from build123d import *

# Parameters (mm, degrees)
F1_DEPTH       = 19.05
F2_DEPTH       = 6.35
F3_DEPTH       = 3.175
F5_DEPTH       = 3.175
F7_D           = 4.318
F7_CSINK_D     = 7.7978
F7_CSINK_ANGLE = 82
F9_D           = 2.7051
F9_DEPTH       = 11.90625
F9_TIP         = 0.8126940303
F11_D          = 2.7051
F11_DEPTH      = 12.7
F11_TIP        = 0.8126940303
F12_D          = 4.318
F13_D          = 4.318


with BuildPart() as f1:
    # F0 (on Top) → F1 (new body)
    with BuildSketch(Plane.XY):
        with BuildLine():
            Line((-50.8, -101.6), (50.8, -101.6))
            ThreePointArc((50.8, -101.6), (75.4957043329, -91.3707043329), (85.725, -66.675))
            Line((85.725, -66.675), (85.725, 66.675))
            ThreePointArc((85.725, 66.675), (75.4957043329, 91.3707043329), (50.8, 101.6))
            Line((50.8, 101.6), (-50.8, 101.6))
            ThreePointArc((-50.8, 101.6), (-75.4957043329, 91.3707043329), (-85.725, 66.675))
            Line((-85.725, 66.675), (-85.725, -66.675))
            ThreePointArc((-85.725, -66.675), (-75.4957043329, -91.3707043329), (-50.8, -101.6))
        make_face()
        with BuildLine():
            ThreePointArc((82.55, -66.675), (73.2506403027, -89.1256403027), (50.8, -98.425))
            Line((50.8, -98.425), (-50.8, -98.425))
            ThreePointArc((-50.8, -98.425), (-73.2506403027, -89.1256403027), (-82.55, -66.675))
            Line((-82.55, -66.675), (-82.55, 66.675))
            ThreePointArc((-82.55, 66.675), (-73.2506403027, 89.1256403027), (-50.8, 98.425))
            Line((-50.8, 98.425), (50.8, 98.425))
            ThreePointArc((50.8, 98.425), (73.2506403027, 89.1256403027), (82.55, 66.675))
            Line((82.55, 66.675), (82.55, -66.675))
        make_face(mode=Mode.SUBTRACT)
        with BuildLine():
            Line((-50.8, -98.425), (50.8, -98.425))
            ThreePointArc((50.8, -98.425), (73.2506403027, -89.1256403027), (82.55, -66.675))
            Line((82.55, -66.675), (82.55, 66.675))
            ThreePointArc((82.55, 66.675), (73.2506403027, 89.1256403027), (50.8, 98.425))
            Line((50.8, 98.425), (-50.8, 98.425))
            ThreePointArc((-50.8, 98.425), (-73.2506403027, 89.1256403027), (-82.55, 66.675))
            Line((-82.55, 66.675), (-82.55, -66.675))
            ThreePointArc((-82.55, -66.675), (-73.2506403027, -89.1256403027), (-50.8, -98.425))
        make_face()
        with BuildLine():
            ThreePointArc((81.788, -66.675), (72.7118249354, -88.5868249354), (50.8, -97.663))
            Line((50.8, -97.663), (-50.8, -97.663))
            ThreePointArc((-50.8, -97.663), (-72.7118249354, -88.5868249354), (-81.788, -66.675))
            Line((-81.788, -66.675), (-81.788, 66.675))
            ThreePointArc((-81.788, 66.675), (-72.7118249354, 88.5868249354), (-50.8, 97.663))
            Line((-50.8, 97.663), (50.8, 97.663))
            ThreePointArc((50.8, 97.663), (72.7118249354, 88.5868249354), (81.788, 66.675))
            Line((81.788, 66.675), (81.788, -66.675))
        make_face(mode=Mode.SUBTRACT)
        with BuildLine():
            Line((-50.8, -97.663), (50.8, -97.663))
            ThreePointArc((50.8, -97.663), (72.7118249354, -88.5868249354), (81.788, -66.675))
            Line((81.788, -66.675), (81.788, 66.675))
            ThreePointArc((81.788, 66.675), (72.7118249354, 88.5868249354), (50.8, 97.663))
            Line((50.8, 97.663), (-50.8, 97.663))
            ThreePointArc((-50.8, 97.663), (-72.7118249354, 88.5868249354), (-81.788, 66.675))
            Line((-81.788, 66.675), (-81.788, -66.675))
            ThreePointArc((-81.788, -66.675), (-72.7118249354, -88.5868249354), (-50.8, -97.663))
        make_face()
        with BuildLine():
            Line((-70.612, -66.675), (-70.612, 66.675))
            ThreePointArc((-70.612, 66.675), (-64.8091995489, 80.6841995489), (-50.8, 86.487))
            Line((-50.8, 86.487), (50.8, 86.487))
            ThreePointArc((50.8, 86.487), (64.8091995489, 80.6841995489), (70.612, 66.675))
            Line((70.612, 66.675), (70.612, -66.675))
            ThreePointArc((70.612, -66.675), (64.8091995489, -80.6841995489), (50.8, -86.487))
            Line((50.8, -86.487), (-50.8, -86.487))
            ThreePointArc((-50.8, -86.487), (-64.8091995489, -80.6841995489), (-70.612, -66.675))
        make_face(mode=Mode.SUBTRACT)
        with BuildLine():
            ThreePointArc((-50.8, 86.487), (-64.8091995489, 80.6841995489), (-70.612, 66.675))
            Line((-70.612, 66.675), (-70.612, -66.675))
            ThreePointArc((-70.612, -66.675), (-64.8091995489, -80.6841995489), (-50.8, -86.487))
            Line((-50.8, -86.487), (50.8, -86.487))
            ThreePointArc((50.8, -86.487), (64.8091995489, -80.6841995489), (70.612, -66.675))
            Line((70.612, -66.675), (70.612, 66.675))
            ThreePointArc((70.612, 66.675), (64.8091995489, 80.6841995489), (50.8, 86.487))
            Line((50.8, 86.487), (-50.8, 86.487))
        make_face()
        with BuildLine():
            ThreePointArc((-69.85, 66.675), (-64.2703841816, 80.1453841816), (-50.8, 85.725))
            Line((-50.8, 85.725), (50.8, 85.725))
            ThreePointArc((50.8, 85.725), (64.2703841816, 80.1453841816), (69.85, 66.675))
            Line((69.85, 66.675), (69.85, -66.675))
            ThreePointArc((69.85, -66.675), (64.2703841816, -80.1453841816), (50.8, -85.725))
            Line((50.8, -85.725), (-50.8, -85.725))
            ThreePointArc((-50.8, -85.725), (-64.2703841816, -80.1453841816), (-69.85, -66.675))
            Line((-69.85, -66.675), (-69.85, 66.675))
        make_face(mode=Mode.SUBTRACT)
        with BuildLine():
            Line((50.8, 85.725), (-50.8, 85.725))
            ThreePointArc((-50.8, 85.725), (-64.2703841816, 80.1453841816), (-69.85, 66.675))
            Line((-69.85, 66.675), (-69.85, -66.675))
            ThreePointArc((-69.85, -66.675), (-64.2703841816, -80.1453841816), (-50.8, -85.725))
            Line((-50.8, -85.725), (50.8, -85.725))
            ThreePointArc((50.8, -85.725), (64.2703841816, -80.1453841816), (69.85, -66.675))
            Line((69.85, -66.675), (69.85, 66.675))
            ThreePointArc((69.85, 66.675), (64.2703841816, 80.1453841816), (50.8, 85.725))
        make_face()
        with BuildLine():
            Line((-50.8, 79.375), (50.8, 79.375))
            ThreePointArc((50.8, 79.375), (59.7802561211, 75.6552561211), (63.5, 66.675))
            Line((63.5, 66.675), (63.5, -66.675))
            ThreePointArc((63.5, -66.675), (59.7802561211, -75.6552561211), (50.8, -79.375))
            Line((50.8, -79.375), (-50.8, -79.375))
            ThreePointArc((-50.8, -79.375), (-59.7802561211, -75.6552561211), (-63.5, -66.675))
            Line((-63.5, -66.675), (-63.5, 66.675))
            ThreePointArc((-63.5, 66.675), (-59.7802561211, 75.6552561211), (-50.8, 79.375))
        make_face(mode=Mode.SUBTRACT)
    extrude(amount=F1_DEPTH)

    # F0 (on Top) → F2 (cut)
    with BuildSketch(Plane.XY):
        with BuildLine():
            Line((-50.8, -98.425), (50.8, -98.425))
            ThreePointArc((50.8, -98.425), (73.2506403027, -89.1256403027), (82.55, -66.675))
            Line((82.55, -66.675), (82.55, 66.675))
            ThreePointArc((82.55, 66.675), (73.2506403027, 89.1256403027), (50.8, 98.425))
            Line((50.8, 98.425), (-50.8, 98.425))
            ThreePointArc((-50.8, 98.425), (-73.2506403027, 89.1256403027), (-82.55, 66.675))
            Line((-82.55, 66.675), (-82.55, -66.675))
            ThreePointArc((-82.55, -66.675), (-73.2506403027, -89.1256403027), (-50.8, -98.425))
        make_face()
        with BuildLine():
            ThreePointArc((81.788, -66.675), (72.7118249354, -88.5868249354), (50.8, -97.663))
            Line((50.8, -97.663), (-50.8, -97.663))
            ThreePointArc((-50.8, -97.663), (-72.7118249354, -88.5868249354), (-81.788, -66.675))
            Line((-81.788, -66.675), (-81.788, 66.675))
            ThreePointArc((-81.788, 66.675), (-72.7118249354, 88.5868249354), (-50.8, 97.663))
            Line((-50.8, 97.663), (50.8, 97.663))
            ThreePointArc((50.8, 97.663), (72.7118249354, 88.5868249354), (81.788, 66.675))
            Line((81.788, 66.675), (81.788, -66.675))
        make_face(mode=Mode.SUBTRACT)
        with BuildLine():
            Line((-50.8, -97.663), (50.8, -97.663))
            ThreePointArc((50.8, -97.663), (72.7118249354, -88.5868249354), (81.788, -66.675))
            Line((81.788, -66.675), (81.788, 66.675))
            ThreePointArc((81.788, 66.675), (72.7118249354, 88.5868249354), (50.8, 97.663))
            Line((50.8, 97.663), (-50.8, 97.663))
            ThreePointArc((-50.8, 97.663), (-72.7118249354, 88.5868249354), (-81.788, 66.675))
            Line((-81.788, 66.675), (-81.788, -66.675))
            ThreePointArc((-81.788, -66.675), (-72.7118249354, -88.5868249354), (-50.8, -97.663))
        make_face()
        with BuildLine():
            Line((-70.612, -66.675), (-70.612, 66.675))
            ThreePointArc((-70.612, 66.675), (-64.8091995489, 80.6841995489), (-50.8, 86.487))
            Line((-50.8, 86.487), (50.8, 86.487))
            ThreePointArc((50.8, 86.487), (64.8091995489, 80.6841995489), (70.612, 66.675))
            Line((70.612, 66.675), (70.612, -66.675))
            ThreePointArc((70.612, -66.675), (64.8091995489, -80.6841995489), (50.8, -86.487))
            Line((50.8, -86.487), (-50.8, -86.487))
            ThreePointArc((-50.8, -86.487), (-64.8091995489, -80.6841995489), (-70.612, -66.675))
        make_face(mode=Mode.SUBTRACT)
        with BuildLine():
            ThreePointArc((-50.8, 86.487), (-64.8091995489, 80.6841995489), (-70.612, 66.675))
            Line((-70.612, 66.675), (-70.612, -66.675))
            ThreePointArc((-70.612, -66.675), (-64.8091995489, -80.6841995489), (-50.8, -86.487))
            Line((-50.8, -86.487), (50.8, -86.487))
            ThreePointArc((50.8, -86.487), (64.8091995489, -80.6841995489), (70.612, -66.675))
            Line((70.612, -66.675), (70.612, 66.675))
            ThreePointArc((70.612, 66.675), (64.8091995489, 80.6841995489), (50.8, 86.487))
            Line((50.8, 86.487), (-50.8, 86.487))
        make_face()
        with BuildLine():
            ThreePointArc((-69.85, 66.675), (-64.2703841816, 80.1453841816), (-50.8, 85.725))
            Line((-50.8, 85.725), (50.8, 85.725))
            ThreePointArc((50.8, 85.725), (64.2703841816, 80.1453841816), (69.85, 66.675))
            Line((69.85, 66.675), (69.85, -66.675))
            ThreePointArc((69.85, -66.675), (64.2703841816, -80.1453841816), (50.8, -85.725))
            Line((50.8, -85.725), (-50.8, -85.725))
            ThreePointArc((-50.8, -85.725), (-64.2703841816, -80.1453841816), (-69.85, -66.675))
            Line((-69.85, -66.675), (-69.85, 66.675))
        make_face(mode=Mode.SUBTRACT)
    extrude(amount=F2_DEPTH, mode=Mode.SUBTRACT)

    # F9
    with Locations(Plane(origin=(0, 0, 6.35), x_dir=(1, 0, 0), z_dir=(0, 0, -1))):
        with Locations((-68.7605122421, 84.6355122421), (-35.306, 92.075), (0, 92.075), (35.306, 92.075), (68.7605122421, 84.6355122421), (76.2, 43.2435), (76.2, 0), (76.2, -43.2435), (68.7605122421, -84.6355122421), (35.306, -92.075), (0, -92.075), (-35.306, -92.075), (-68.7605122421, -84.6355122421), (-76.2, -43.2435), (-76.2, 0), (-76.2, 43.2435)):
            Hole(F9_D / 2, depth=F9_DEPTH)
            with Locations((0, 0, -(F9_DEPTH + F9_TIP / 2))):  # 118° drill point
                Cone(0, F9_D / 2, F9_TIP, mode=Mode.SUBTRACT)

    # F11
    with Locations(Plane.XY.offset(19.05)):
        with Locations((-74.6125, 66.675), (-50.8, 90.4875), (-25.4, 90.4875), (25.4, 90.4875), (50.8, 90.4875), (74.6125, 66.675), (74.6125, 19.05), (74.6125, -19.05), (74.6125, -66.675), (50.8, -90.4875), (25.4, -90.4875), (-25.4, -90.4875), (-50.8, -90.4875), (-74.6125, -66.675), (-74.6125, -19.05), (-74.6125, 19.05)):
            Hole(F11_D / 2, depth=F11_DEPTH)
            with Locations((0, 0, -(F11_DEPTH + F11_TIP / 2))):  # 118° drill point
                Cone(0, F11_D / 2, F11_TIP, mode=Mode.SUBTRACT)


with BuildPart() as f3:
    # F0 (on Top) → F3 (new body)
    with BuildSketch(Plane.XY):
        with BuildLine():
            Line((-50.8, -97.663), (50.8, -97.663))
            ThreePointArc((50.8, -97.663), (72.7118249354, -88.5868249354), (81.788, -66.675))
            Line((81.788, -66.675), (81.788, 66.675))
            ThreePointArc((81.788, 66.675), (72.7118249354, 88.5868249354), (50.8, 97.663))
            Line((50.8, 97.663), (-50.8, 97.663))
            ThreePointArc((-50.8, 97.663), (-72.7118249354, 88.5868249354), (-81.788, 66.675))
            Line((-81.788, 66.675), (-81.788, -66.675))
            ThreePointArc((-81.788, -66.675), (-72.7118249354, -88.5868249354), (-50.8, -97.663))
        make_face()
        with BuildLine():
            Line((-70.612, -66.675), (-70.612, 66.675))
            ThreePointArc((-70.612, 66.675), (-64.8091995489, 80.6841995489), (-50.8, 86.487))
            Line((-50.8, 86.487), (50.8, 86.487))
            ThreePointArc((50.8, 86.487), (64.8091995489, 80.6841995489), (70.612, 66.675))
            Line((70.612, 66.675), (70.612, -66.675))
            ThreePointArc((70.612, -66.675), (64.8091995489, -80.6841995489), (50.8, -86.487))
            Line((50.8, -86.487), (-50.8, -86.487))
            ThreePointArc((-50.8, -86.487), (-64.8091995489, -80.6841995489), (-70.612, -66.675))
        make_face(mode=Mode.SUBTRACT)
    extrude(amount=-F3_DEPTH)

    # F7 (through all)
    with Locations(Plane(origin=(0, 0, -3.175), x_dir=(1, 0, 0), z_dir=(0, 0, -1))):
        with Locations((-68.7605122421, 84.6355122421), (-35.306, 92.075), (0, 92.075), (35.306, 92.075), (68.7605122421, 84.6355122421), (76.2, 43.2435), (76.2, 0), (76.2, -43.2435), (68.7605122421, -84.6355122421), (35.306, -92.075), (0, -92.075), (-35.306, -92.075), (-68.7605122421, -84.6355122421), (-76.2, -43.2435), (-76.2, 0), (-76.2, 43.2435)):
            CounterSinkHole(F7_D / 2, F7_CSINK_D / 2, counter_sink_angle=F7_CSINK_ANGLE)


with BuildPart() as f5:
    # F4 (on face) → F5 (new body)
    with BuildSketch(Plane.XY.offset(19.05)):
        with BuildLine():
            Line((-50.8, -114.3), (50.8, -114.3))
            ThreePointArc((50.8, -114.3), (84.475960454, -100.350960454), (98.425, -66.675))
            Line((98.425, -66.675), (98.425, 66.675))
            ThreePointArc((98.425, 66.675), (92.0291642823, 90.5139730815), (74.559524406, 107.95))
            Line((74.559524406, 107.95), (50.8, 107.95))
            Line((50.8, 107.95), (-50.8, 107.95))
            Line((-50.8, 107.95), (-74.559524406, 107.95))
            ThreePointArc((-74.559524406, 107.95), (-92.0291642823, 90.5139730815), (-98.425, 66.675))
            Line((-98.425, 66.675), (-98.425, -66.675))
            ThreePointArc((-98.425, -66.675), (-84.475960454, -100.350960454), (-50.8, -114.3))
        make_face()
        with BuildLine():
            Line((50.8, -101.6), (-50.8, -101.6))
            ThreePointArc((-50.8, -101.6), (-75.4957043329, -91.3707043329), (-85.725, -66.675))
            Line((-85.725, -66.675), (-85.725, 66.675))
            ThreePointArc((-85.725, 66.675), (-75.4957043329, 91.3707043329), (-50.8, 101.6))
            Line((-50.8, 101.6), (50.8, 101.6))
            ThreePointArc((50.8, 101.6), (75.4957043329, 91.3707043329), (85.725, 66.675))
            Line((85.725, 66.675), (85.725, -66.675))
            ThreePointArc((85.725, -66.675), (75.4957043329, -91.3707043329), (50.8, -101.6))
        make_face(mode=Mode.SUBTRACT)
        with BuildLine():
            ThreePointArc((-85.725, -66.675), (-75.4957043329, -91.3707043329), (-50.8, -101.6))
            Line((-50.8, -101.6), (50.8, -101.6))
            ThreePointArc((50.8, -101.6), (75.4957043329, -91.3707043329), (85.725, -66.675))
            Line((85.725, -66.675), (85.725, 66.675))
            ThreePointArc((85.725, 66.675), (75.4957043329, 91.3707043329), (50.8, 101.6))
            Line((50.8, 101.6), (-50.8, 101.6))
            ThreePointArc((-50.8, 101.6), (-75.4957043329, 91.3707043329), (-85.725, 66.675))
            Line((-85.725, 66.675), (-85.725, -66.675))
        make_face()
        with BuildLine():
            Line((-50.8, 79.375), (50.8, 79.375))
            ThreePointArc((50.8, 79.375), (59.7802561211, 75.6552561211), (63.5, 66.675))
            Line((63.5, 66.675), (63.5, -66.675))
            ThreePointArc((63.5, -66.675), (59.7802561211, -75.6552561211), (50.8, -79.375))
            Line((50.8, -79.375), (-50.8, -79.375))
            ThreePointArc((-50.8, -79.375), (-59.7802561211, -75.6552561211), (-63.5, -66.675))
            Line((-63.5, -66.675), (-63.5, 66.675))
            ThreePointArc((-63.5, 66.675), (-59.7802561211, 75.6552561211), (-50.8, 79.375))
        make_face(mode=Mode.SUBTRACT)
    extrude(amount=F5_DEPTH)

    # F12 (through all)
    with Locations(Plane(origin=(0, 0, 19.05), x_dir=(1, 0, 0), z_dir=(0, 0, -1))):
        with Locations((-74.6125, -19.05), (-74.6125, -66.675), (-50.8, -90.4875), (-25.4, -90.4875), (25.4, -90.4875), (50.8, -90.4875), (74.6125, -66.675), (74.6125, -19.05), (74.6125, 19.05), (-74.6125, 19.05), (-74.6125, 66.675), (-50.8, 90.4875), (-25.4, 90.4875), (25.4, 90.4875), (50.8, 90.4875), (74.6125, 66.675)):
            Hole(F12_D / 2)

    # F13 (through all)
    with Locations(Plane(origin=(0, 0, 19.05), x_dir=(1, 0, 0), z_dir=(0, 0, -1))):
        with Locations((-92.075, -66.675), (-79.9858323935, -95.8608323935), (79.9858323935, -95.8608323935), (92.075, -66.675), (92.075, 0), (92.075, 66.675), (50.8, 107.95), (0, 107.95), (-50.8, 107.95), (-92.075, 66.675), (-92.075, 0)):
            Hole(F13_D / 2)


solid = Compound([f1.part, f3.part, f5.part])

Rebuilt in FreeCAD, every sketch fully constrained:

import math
import FreeCAD as App
import Part
import Sketcher

V = App.Vector
Q = App.Units.Quantity

doc = App.newDocument("Part")
body = doc.addObject("PartDesign::Body", "Body")

sketch1 = doc.addObject("Sketcher::SketchObject", "Sketch")
body.addObject(sketch1)
sketch1.AttachmentSupport = (doc.XY_Plane, [""])
sketch1.MapMode = "FlatFace"
sketch1.addGeometry([
    Part.LineSegment(V(-51, -102, 0), V(51, -102, 0)),
    Part.ArcOfCircle(Part.Circle(V(51, -67, 0), V(0, 0, 1), 35), math.radians(-90), math.radians(0)),
    Part.LineSegment(V(86, -67, 0), V(86, 67, 0)),
    Part.ArcOfCircle(Part.Circle(V(51, 67, 0), V(0, 0, 1), 35), math.radians(0), math.radians(90)),
    Part.LineSegment(V(51, 102, 0), V(-51, 102, 0)),
    Part.ArcOfCircle(Part.Circle(V(-51, 67, 0), V(0, 0, 1), 35), math.radians(90), math.radians(180)),
    Part.LineSegment(V(-86, 67, 0), V(-86, -67, 0)),
    Part.ArcOfCircle(Part.Circle(V(-51, -67, 0), V(0, 0, 1), 35), math.radians(180), math.radians(270)),
    Part.ArcOfCircle(Part.Circle(V(-51, 67, 0), V(0, 0, 1), 13), math.radians(90), math.radians(180)),
    Part.LineSegment(V(-51, 79, 0), V(51, 79, 0)),
    Part.ArcOfCircle(Part.Circle(V(51, 67, 0), V(0, 0, 1), 13), math.radians(0), math.radians(90)),
    Part.LineSegment(V(64, 67, 0), V(64, -67, 0)),
    Part.ArcOfCircle(Part.Circle(V(51, -67, 0), V(0, 0, 1), 13), math.radians(-90), math.radians(0)),
    Part.LineSegment(V(51, -79, 0), V(-51, -79, 0)),
    Part.ArcOfCircle(Part.Circle(V(-51, -67, 0), V(0, 0, 1), 13), math.radians(180), math.radians(270)),
    Part.LineSegment(V(-64, -67, 0), V(-64, 67, 0)),
], False)
sketch1.addConstraint([
    Sketcher.Constraint("Tangent", 0, 2, 1, 1),
    Sketcher.Constraint("Tangent", 1, 2, 2, 1),
    Sketcher.Constraint("Tangent", 2, 2, 3, 1),
    Sketcher.Constraint("Tangent", 3, 2, 4, 1),
    Sketcher.Constraint("Tangent", 4, 2, 5, 1),
    Sketcher.Constraint("Tangent", 5, 2, 6, 1),
    Sketcher.Constraint("Tangent", 6, 2, 7, 1),
    Sketcher.Constraint("Tangent", 7, 2, 0, 1),
    Sketcher.Constraint("Tangent", 8, 1, 9, 1),
    Sketcher.Constraint("Tangent", 9, 2, 10, 2),
    Sketcher.Constraint("Tangent", 10, 1, 11, 1),
    Sketcher.Constraint("Tangent", 11, 2, 12, 2),
    Sketcher.Constraint("Tangent", 12, 1, 13, 1),
    Sketcher.Constraint("Tangent", 13, 2, 14, 2),
    Sketcher.Constraint("Tangent", 14, 1, 15, 1),
    Sketcher.Constraint("Tangent", 15, 2, 8, 2),
    Sketcher.Constraint("Horizontal", 0),
    Sketcher.Constraint("Vertical", 2),
    Sketcher.Constraint("Horizontal", 4),
    Sketcher.Constraint("Vertical", 6),
    Sketcher.Constraint("Horizontal", 9),
    Sketcher.Constraint("Vertical", 11),
    Sketcher.Constraint("Horizontal", 13),
    Sketcher.Constraint("Vertical", 15),
    Sketcher.Constraint("Coincident", 8, 3, 5, 3),
    Sketcher.Constraint("Coincident", 10, 3, 3, 3),
    Sketcher.Constraint("Coincident", 12, 3, 1, 3),
    Sketcher.Constraint("Equal", 1, 3),
    Sketcher.Constraint("Equal", 3, 5),
    Sketcher.Constraint("Equal", 5, 7),
    Sketcher.Constraint("Equal", 12, 14),
    Sketcher.Constraint("Symmetric", 1, 3, 5, 3, -1, 1),
    Sketcher.Constraint("Radius", 8, Q("0.5 in")),
    Sketcher.Constraint("DistanceX", 0, 1, 0, 2, Q("4 in")),
    Sketcher.Constraint("DistanceY", 0, 2, -1, 1, Q("4 in")),
    Sketcher.Constraint("Radius", 1, Q("1.375 in")),
])
pad1 = doc.addObject("PartDesign::Pad", "Pad")
body.addObject(pad1)
pad1.Profile = sketch1
pad1.Length = Q("0.75 in")

sketch2 = doc.addObject("Sketcher::SketchObject", "Sketch001")
body.addObject(sketch2)
sketch2.AttachmentSupport = (doc.XY_Plane, [""])
sketch2.MapMode = "FlatFace"
sketch2.addGeometry([
    Part.LineSegment(V(-51, -98, 0), V(51, -98, 0)),
    Part.ArcOfCircle(Part.Circle(V(51, -67, 0), V(0, 0, 1), 32), math.radians(-90), math.radians(0)),
    Part.LineSegment(V(83, -67, 0), V(83, 67, 0)),
    Part.ArcOfCircle(Part.Circle(V(51, 67, 0), V(0, 0, 1), 32), math.radians(0), math.radians(90)),
    Part.LineSegment(V(51, 98, 0), V(-51, 98, 0)),
    Part.ArcOfCircle(Part.Circle(V(-51, 67, 0), V(0, 0, 1), 32), math.radians(90), math.radians(180)),
    Part.LineSegment(V(-83, 67, 0), V(-83, -67, 0)),
    Part.ArcOfCircle(Part.Circle(V(-51, -67, 0), V(0, 0, 1), 32), math.radians(180), math.radians(270)),
    Part.LineSegment(V(-70, -67, 0), V(-70, 67, 0)),
    Part.ArcOfCircle(Part.Circle(V(-51, 67, 0), V(0, 0, 1), 19), math.radians(90), math.radians(180)),
    Part.LineSegment(V(-51, 86, 0), V(51, 86, 0)),
    Part.ArcOfCircle(Part.Circle(V(51, 67, 0), V(0, 0, 1), 19), math.radians(0), math.radians(90)),
    Part.LineSegment(V(70, 67, 0), V(70, -67, 0)),
    Part.ArcOfCircle(Part.Circle(V(51, -67, 0), V(0, 0, 1), 19), math.radians(-90), math.radians(0)),
    Part.LineSegment(V(51, -86, 0), V(-51, -86, 0)),
    Part.ArcOfCircle(Part.Circle(V(-51, -67, 0), V(0, 0, 1), 19), math.radians(180), math.radians(270)),
], False)
sketch2.addConstraint([
    Sketcher.Constraint("Tangent", 0, 2, 1, 1),
    Sketcher.Constraint("Tangent", 1, 2, 2, 1),
    Sketcher.Constraint("Tangent", 2, 2, 3, 1),
    Sketcher.Constraint("Tangent", 3, 2, 4, 1),
    Sketcher.Constraint("Tangent", 4, 2, 5, 1),
    Sketcher.Constraint("Tangent", 5, 2, 6, 1),
    Sketcher.Constraint("Tangent", 6, 2, 7, 1),
    Sketcher.Constraint("Tangent", 7, 2, 0, 1),
    Sketcher.Constraint("Tangent", 8, 2, 9, 2),
    Sketcher.Constraint("Tangent", 9, 1, 10, 1),
    Sketcher.Constraint("Tangent", 10, 2, 11, 2),
    Sketcher.Constraint("Tangent", 11, 1, 12, 1),
    Sketcher.Constraint("Tangent", 12, 2, 13, 2),
    Sketcher.Constraint("Tangent", 13, 1, 14, 1),
    Sketcher.Constraint("Tangent", 14, 2, 15, 2),
    Sketcher.Constraint("Tangent", 15, 1, 8, 1),
    Sketcher.Constraint("Horizontal", 0),
    Sketcher.Constraint("Vertical", 2),
    Sketcher.Constraint("Horizontal", 4),
    Sketcher.Constraint("Vertical", 6),
    Sketcher.Constraint("Vertical", 8),
    Sketcher.Constraint("Horizontal", 10),
    Sketcher.Constraint("Vertical", 12),
    Sketcher.Constraint("Horizontal", 14),
    Sketcher.Constraint("Coincident", 9, 3, 5, 3),
    Sketcher.Constraint("Coincident", 11, 3, 3, 3),
    Sketcher.Constraint("Coincident", 13, 3, 1, 3),
    Sketcher.Constraint("Equal", 1, 3),
    Sketcher.Constraint("Equal", 3, 5),
    Sketcher.Constraint("Equal", 5, 7),
    Sketcher.Constraint("Equal", 13, 15),
    Sketcher.Constraint("Symmetric", 1, 3, 5, 3, -1, 1),
    Sketcher.Constraint("DistanceX", 0, 1, 0, 2, Q("4 in")),
    Sketcher.Constraint("Radius", 1, Q("1.25 in")),
    Sketcher.Constraint("Radius", 9, Q("0.75 in")),
    Sketcher.Constraint("DistanceY", 2, 1, 2, 2, Q("5.25 in")),
])
pocket1 = doc.addObject("PartDesign::Pocket", "Pocket")
body.addObject(pocket1)
pocket1.Profile = sketch2
pocket1.Length = Q("0.25 in")
pocket1.Reversed = True

sketch3 = doc.addObject("Sketcher::SketchObject", "Sketch002")
body.addObject(sketch3)
sketch3.AttachmentSupport = (doc.XY_Plane, [""])
sketch3.MapMode = "FlatFace"
sketch3.AttachmentOffset = App.Placement(V(0, 0, 0.25 * 25.4), App.Rotation())
sketch3.addGeometry([
    Part.Circle(V(-68.8, -84.6, 0), V(0, 0, 1), 1.4),
    Part.Circle(V(-35.3, -92.1, 0), V(0, 0, 1), 1.4),
    Part.Circle(V(0, -92.1, 0), V(0, 0, 1), 1.4),
    Part.Circle(V(35.3, -92.1, 0), V(0, 0, 1), 1.4),
    Part.Circle(V(68.8, -84.6, 0), V(0, 0, 1), 1.4),
    Part.Circle(V(76.2, -43.2, 0), V(0, 0, 1), 1.4),
    Part.Circle(V(76.2, 0, 0), V(0, 0, 1), 1.4),
    Part.Circle(V(76.2, 43.2, 0), V(0, 0, 1), 1.4),
    Part.Circle(V(68.8, 84.6, 0), V(0, 0, 1), 1.4),
    Part.Circle(V(35.3, 92.1, 0), V(0, 0, 1), 1.4),
    Part.Circle(V(0, 92.1, 0), V(0, 0, 1), 1.4),
    Part.Circle(V(-35.3, 92.1, 0), V(0, 0, 1), 1.4),
    Part.Circle(V(-68.8, 84.6, 0), V(0, 0, 1), 1.4),
    Part.Circle(V(-76.2, 43.2, 0), V(0, 0, 1), 1.4),
    Part.Circle(V(-76.2, 0, 0), V(0, 0, 1), 1.4),
    Part.Circle(V(-76.2, -43.2, 0), V(0, 0, 1), 1.4),
], False)
sketch3.addConstraint([
    Sketcher.Constraint("Equal", 0, 1),
    Sketcher.Constraint("Equal", 1, 2),
    Sketcher.Constraint("Equal", 2, 3),
    Sketcher.Constraint("Equal", 3, 4),
    Sketcher.Constraint("Equal", 4, 5),
    Sketcher.Constraint("Equal", 5, 6),
    Sketcher.Constraint("Equal", 6, 7),
    Sketcher.Constraint("Equal", 7, 8),
    Sketcher.Constraint("Equal", 8, 9),
    Sketcher.Constraint("Equal", 9, 10),
    Sketcher.Constraint("Equal", 10, 11),
    Sketcher.Constraint("Equal", 11, 12),
    Sketcher.Constraint("Equal", 12, 13),
    Sketcher.Constraint("Equal", 13, 14),
    Sketcher.Constraint("Equal", 14, 15),
    Sketcher.Constraint("Symmetric", 0, 3, 8, 3, -1, 1),
    Sketcher.Constraint("Symmetric", 1, 3, 9, 3, -1, 1),
    Sketcher.Constraint("Symmetric", 2, 3, 10, 3, -1, 1),
    Sketcher.Constraint("Symmetric", 3, 3, 11, 3, -1, 1),
    Sketcher.Constraint("Symmetric", 4, 3, 12, 3, -1, 1),
    Sketcher.Constraint("Symmetric", 5, 3, 13, 3, -1, 1),
    Sketcher.Constraint("Symmetric", 6, 3, 14, 3, -1, 1),
    Sketcher.Constraint("Symmetric", 7, 3, 15, 3, -1, 1),
    Sketcher.Constraint("Symmetric", 1, 3, 3, 3, -2),
    Sketcher.Constraint("Symmetric", 0, 3, 4, 3, -2),
    Sketcher.Constraint("Symmetric", 7, 3, 13, 3, -2),
    Sketcher.Constraint("PointOnObject", 2, 3, -2),
    Sketcher.Constraint("PointOnObject", 6, 3, -1),
    Sketcher.Constraint("Horizontal", 1, 3, 2, 3),
    Sketcher.Constraint("Vertical", 5, 3, 6, 3),
    Sketcher.Constraint("DistanceX", -1, 1, 5, 3, Q("3 in")),
    Sketcher.Constraint("Diameter", 0, Q("0.1065 in")),
    Sketcher.Constraint("DistanceX", 1, 3, -1, 1, Q("1.39 in")),
    Sketcher.Constraint("DistanceY", 1, 3, -1, 1, Q("3.625 in")),
    Sketcher.Constraint("DistanceY", 5, 3, 7, 3, Q("3.405 in")),
    Sketcher.Constraint("DistanceX", 0, 3, -1, 1, 68.760512),
    Sketcher.Constraint("DistanceY", 0, 3, -1, 1, 84.635512),
])
doc.recompute()
hole = doc.addObject("PartDesign::Hole", "Hole")
body.addObject(hole)
hole.Profile = sketch3
hole.ThreadType = "None"
hole.Diameter = Q("0.1065 in")
hole.DepthType = "Dimension"
hole.Depth = Q("0.46875 in")
hole.DrillPoint = "Angled"
hole.DrillPointAngle = 118
hole.Reversed = True

sketch4 = doc.addObject("Sketcher::SketchObject", "Sketch003")
body.addObject(sketch4)
sketch4.AttachmentSupport = (doc.XY_Plane, [""])
sketch4.MapMode = "FlatFace"
sketch4.AttachmentOffset = App.Placement(V(0, 0, 0.75 * 25.4), App.Rotation())
sketch4.addGeometry([
    Part.Circle(V(-74.6, 66.7, 0), V(0, 0, 1), 1.4),
    Part.Circle(V(-50.8, 90.5, 0), V(0, 0, 1), 1.4),
    Part.Circle(V(-25.4, 90.5, 0), V(0, 0, 1), 1.4),
    Part.Circle(V(25.4, 90.5, 0), V(0, 0, 1), 1.4),
    Part.Circle(V(50.8, 90.5, 0), V(0, 0, 1), 1.4),
    Part.Circle(V(74.6, 66.7, 0), V(0, 0, 1), 1.4),
    Part.Circle(V(74.6, 19.1, 0), V(0, 0, 1), 1.4),
    Part.Circle(V(74.6, -19.1, 0), V(0, 0, 1), 1.4),
    Part.Circle(V(74.6, -66.7, 0), V(0, 0, 1), 1.4),
    Part.Circle(V(50.8, -90.5, 0), V(0, 0, 1), 1.4),
    Part.Circle(V(25.4, -90.5, 0), V(0, 0, 1), 1.4),
    Part.Circle(V(-25.4, -90.5, 0), V(0, 0, 1), 1.4),
    Part.Circle(V(-50.8, -90.5, 0), V(0, 0, 1), 1.4),
    Part.Circle(V(-74.6, -66.7, 0), V(0, 0, 1), 1.4),
    Part.Circle(V(-74.6, -19.1, 0), V(0, 0, 1), 1.4),
    Part.Circle(V(-74.6, 19.1, 0), V(0, 0, 1), 1.4),
], False)
sketch4.addConstraint([
    Sketcher.Constraint("Equal", 0, 1),
    Sketcher.Constraint("Equal", 1, 2),
    Sketcher.Constraint("Equal", 2, 3),
    Sketcher.Constraint("Equal", 3, 4),
    Sketcher.Constraint("Equal", 4, 5),
    Sketcher.Constraint("Equal", 5, 6),
    Sketcher.Constraint("Equal", 6, 7),
    Sketcher.Constraint("Equal", 7, 8),
    Sketcher.Constraint("Equal", 8, 9),
    Sketcher.Constraint("Equal", 9, 10),
    Sketcher.Constraint("Equal", 10, 11),
    Sketcher.Constraint("Equal", 11, 12),
    Sketcher.Constraint("Equal", 12, 13),
    Sketcher.Constraint("Equal", 13, 14),
    Sketcher.Constraint("Equal", 14, 15),
    Sketcher.Constraint("Symmetric", 0, 3, 8, 3, -1, 1),
    Sketcher.Constraint("Symmetric", 1, 3, 9, 3, -1, 1),
    Sketcher.Constraint("Symmetric", 2, 3, 10, 3, -1, 1),
    Sketcher.Constraint("Symmetric", 3, 3, 11, 3, -1, 1),
    Sketcher.Constraint("Symmetric", 4, 3, 12, 3, -1, 1),
    Sketcher.Constraint("Symmetric", 5, 3, 13, 3, -1, 1),
    Sketcher.Constraint("Symmetric", 6, 3, 14, 3, -1, 1),
    Sketcher.Constraint("Symmetric", 7, 3, 15, 3, -1, 1),
    Sketcher.Constraint("Symmetric", 2, 3, 3, 3, -2),
    Sketcher.Constraint("Symmetric", 1, 3, 4, 3, -2),
    Sketcher.Constraint("Symmetric", 0, 3, 5, 3, -2),
    Sketcher.Constraint("Symmetric", 7, 3, 14, 3, -2),
    Sketcher.Constraint("Horizontal", 1, 3, 2, 3),
    Sketcher.Constraint("Vertical", 5, 3, 6, 3),
    Sketcher.Constraint("DistanceX", 1, 3, -1, 1, Q("2 in")),
    Sketcher.Constraint("DistanceX", 2, 3, -1, 1, Q("1 in")),
    Sketcher.Constraint("Diameter", 0, Q("0.1065 in")),
    Sketcher.Constraint("DistanceY", 7, 3, 6, 3, Q("1.5 in")),
    Sketcher.Constraint("DistanceY", 8, 3, 5, 3, Q("5.25 in")),
    Sketcher.Constraint("DistanceX", 0, 3, -1, 1, Q("2.9375 in")),
    Sketcher.Constraint("DistanceY", -1, 1, 1, 3, Q("3.5625 in")),
])
doc.recompute()
hole2 = doc.addObject("PartDesign::Hole", "Hole001")
body.addObject(hole2)
hole2.Profile = sketch4
hole2.ThreadType = "None"
hole2.Diameter = Q("0.1065 in")
hole2.DepthType = "Dimension"
hole2.Depth = Q("0.5 in")
hole2.DrillPoint = "Angled"
hole2.DrillPointAngle = 118
body2 = doc.addObject("PartDesign::Body", "Body001")

sketch5 = doc.addObject("Sketcher::SketchObject", "Sketch004")
body2.addObject(sketch5)
sketch5.AttachmentSupport = (doc.getObject("XY_Plane001"), [""])
sketch5.MapMode = "FlatFace"
sketch5.addGeometry([
    Part.LineSegment(V(-51, -98, 0), V(51, -98, 0)),
    Part.ArcOfCircle(Part.Circle(V(51, -67, 0), V(0, 0, 1), 31), math.radians(-90), math.radians(0)),
    Part.LineSegment(V(82, -67, 0), V(82, 67, 0)),
    Part.ArcOfCircle(Part.Circle(V(51, 67, 0), V(0, 0, 1), 31), math.radians(0), math.radians(90)),
    Part.LineSegment(V(51, 98, 0), V(-51, 98, 0)),
    Part.ArcOfCircle(Part.Circle(V(-51, 67, 0), V(0, 0, 1), 31), math.radians(90), math.radians(180)),
    Part.LineSegment(V(-82, 67, 0), V(-82, -67, 0)),
    Part.ArcOfCircle(Part.Circle(V(-51, -67, 0), V(0, 0, 1), 31), math.radians(180), math.radians(270)),
    Part.ArcOfCircle(Part.Circle(V(-51, -67, 0), V(0, 0, 1), 20), math.radians(180), math.radians(270)),
    Part.LineSegment(V(-71, -67, 0), V(-71, 67, 0)),
    Part.ArcOfCircle(Part.Circle(V(-51, 67, 0), V(0, 0, 1), 20), math.radians(90), math.radians(180)),
    Part.LineSegment(V(-51, 86, 0), V(51, 86, 0)),
    Part.ArcOfCircle(Part.Circle(V(51, 67, 0), V(0, 0, 1), 20), math.radians(0), math.radians(90)),
    Part.LineSegment(V(71, 67, 0), V(71, -67, 0)),
    Part.ArcOfCircle(Part.Circle(V(51, -67, 0), V(0, 0, 1), 20), math.radians(-90), math.radians(0)),
    Part.LineSegment(V(51, -86, 0), V(-51, -86, 0)),
], False)
sketch5.addConstraint([
    Sketcher.Constraint("Tangent", 0, 2, 1, 1),
    Sketcher.Constraint("Tangent", 1, 2, 2, 1),
    Sketcher.Constraint("Tangent", 2, 2, 3, 1),
    Sketcher.Constraint("Tangent", 3, 2, 4, 1),
    Sketcher.Constraint("Tangent", 4, 2, 5, 1),
    Sketcher.Constraint("Tangent", 5, 2, 6, 1),
    Sketcher.Constraint("Tangent", 6, 2, 7, 1),
    Sketcher.Constraint("Tangent", 7, 2, 0, 1),
    Sketcher.Constraint("Tangent", 8, 1, 9, 1),
    Sketcher.Constraint("Tangent", 9, 2, 10, 2),
    Sketcher.Constraint("Tangent", 10, 1, 11, 1),
    Sketcher.Constraint("Tangent", 11, 2, 12, 2),
    Sketcher.Constraint("Tangent", 12, 1, 13, 1),
    Sketcher.Constraint("Tangent", 13, 2, 14, 2),
    Sketcher.Constraint("Tangent", 14, 1, 15, 1),
    Sketcher.Constraint("Tangent", 15, 2, 8, 2),
    Sketcher.Constraint("Horizontal", 0),
    Sketcher.Constraint("Vertical", 2),
    Sketcher.Constraint("Horizontal", 4),
    Sketcher.Constraint("Vertical", 6),
    Sketcher.Constraint("Vertical", 9),
    Sketcher.Constraint("Horizontal", 11),
    Sketcher.Constraint("Vertical", 13),
    Sketcher.Constraint("Horizontal", 15),
    Sketcher.Constraint("Coincident", 8, 3, 7, 3),
    Sketcher.Constraint("Coincident", 10, 3, 5, 3),
    Sketcher.Constraint("Coincident", 12, 3, 3, 3),
    Sketcher.Constraint("Equal", 1, 3),
    Sketcher.Constraint("Equal", 3, 5),
    Sketcher.Constraint("Equal", 5, 7),
    Sketcher.Constraint("Equal", 12, 14),
    Sketcher.Constraint("Symmetric", 1, 3, 5, 3, -1, 1),
    Sketcher.Constraint("DistanceX", 0, 1, 0, 2, Q("4 in")),
    Sketcher.Constraint("Radius", 1, Q("1.22 in")),
    Sketcher.Constraint("Radius", 8, Q("0.78 in")),
    Sketcher.Constraint("DistanceY", 2, 1, 2, 2, Q("5.25 in")),
])
pad2 = doc.addObject("PartDesign::Pad", "Pad001")
body2.addObject(pad2)
pad2.Profile = sketch5
pad2.Length = Q("0.125 in")
pad2.Reversed = True

sketch6 = doc.addObject("Sketcher::SketchObject", "Sketch005")
body2.addObject(sketch6)
sketch6.AttachmentSupport = (doc.getObject("XY_Plane001"), [""])
sketch6.MapMode = "FlatFace"
sketch6.AttachmentOffset = App.Placement(V(0, 0, -0.125 * 25.4), App.Rotation())
sketch6.addGeometry([
    Part.Circle(V(-68.8, -84.6, 0), V(0, 0, 1), 2.2),
    Part.Circle(V(-35.3, -92.1, 0), V(0, 0, 1), 2.2),
    Part.Circle(V(0, -92.1, 0), V(0, 0, 1), 2.2),
    Part.Circle(V(35.3, -92.1, 0), V(0, 0, 1), 2.2),
    Part.Circle(V(68.8, -84.6, 0), V(0, 0, 1), 2.2),
    Part.Circle(V(76.2, -43.2, 0), V(0, 0, 1), 2.2),
    Part.Circle(V(76.2, 0, 0), V(0, 0, 1), 2.2),
    Part.Circle(V(76.2, 43.2, 0), V(0, 0, 1), 2.2),
    Part.Circle(V(68.8, 84.6, 0), V(0, 0, 1), 2.2),
    Part.Circle(V(35.3, 92.1, 0), V(0, 0, 1), 2.2),
    Part.Circle(V(0, 92.1, 0), V(0, 0, 1), 2.2),
    Part.Circle(V(-35.3, 92.1, 0), V(0, 0, 1), 2.2),
    Part.Circle(V(-68.8, 84.6, 0), V(0, 0, 1), 2.2),
    Part.Circle(V(-76.2, 43.2, 0), V(0, 0, 1), 2.2),
    Part.Circle(V(-76.2, 0, 0), V(0, 0, 1), 2.2),
    Part.Circle(V(-76.2, -43.2, 0), V(0, 0, 1), 2.2),
], False)
sketch6.addConstraint([
    Sketcher.Constraint("Equal", 0, 1),
    Sketcher.Constraint("Equal", 1, 2),
    Sketcher.Constraint("Equal", 2, 3),
    Sketcher.Constraint("Equal", 3, 4),
    Sketcher.Constraint("Equal", 4, 5),
    Sketcher.Constraint("Equal", 5, 6),
    Sketcher.Constraint("Equal", 6, 7),
    Sketcher.Constraint("Equal", 7, 8),
    Sketcher.Constraint("Equal", 8, 9),
    Sketcher.Constraint("Equal", 9, 10),
    Sketcher.Constraint("Equal", 10, 11),
    Sketcher.Constraint("Equal", 11, 12),
    Sketcher.Constraint("Equal", 12, 13),
    Sketcher.Constraint("Equal", 13, 14),
    Sketcher.Constraint("Equal", 14, 15),
    Sketcher.Constraint("Symmetric", 0, 3, 8, 3, -1, 1),
    Sketcher.Constraint("Symmetric", 1, 3, 9, 3, -1, 1),
    Sketcher.Constraint("Symmetric", 2, 3, 10, 3, -1, 1),
    Sketcher.Constraint("Symmetric", 3, 3, 11, 3, -1, 1),
    Sketcher.Constraint("Symmetric", 4, 3, 12, 3, -1, 1),
    Sketcher.Constraint("Symmetric", 5, 3, 13, 3, -1, 1),
    Sketcher.Constraint("Symmetric", 6, 3, 14, 3, -1, 1),
    Sketcher.Constraint("Symmetric", 7, 3, 15, 3, -1, 1),
    Sketcher.Constraint("Symmetric", 1, 3, 3, 3, -2),
    Sketcher.Constraint("Symmetric", 0, 3, 4, 3, -2),
    Sketcher.Constraint("Symmetric", 7, 3, 13, 3, -2),
    Sketcher.Constraint("PointOnObject", 2, 3, -2),
    Sketcher.Constraint("PointOnObject", 6, 3, -1),
    Sketcher.Constraint("Horizontal", 1, 3, 2, 3),
    Sketcher.Constraint("Vertical", 5, 3, 6, 3),
    Sketcher.Constraint("Diameter", 0, Q("0.17 in")),
    Sketcher.Constraint("DistanceX", -1, 1, 5, 3, Q("3 in")),
    Sketcher.Constraint("DistanceX", 1, 3, -1, 1, Q("1.39 in")),
    Sketcher.Constraint("DistanceY", 1, 3, -1, 1, Q("3.625 in")),
    Sketcher.Constraint("DistanceY", 5, 3, 7, 3, Q("3.405 in")),
    Sketcher.Constraint("DistanceX", 0, 3, -1, 1, 68.760512),
    Sketcher.Constraint("DistanceY", 0, 3, -1, 1, 84.635512),
])
doc.recompute()
hole3 = doc.addObject("PartDesign::Hole", "Hole002")
body2.addObject(hole3)
hole3.Profile = sketch6
hole3.ThreadType = "None"
hole3.Diameter = Q("0.17 in")
hole3.DepthType = "ThroughAll"
hole3.HoleCutType = "Countersink"
hole3.HoleCutDiameter = Q("0.307 in")
hole3.HoleCutCountersinkAngle = 82
hole3.Reversed = True
body3 = doc.addObject("PartDesign::Body", "Body002")

sketch7 = doc.addObject("Sketcher::SketchObject", "Sketch006")
body3.addObject(sketch7)
sketch7.AttachmentSupport = (doc.getObject("XY_Plane002"), [""])
sketch7.MapMode = "FlatFace"
sketch7.AttachmentOffset = App.Placement(V(0, 0, 0.75 * 25.4), App.Rotation())
sketch7.addGeometry([
    Part.LineSegment(V(-51, -114, 0), V(51, -114, 0)),
    Part.ArcOfCircle(Part.Circle(V(51, -67, 0), V(0, 0, 1), 48), math.radians(-90), math.radians(0)),
    Part.LineSegment(V(98, -67, 0), V(98, 67, 0)),
    Part.ArcOfCircle(Part.Circle(V(51, 67, 0), V(0, 0, 1), 48), math.radians(0), math.radians(60)),
    Part.LineSegment(V(75, 108, 0), V(-75, 108, 0)),
    Part.ArcOfCircle(Part.Circle(V(-51, 67, 0), V(0, 0, 1), 48), math.radians(120), math.radians(180)),
    Part.LineSegment(V(-98, 67, 0), V(-98, -67, 0)),
    Part.ArcOfCircle(Part.Circle(V(-51, -67, 0), V(0, 0, 1), 48), math.radians(180), math.radians(270)),
    Part.ArcOfCircle(Part.Circle(V(-51, 67, 0), V(0, 0, 1), 13), math.radians(90), math.radians(180)),
    Part.LineSegment(V(-51, 79, 0), V(51, 79, 0)),
    Part.ArcOfCircle(Part.Circle(V(51, 67, 0), V(0, 0, 1), 13), math.radians(0), math.radians(90)),
    Part.LineSegment(V(64, 67, 0), V(64, -67, 0)),
    Part.ArcOfCircle(Part.Circle(V(51, -67, 0), V(0, 0, 1), 13), math.radians(-90), math.radians(0)),
    Part.LineSegment(V(51, -79, 0), V(-51, -79, 0)),
    Part.ArcOfCircle(Part.Circle(V(-51, -67, 0), V(0, 0, 1), 13), math.radians(180), math.radians(270)),
    Part.LineSegment(V(-64, -67, 0), V(-64, 67, 0)),
], False)
sketch7.addConstraint([
    Sketcher.Constraint("Tangent", 0, 2, 1, 1),
    Sketcher.Constraint("Tangent", 1, 2, 2, 1),
    Sketcher.Constraint("Tangent", 2, 2, 3, 1),
    Sketcher.Constraint("Coincident", 3, 2, 4, 1),
    Sketcher.Constraint("Coincident", 4, 2, 5, 1),
    Sketcher.Constraint("Tangent", 5, 2, 6, 1),
    Sketcher.Constraint("Tangent", 6, 2, 7, 1),
    Sketcher.Constraint("Tangent", 7, 2, 0, 1),
    Sketcher.Constraint("Tangent", 8, 1, 9, 1),
    Sketcher.Constraint("Tangent", 9, 2, 10, 2),
    Sketcher.Constraint("Tangent", 10, 1, 11, 1),
    Sketcher.Constraint("Tangent", 11, 2, 12, 2),
    Sketcher.Constraint("Tangent", 12, 1, 13, 1),
    Sketcher.Constraint("Tangent", 13, 2, 14, 2),
    Sketcher.Constraint("Tangent", 14, 1, 15, 1),
    Sketcher.Constraint("Tangent", 15, 2, 8, 2),
    Sketcher.Constraint("Horizontal", 0),
    Sketcher.Constraint("Vertical", 2),
    Sketcher.Constraint("Horizontal", 4),
    Sketcher.Constraint("Vertical", 6),
    Sketcher.Constraint("Horizontal", 9),
    Sketcher.Constraint("Vertical", 11),
    Sketcher.Constraint("Horizontal", 13),
    Sketcher.Constraint("Vertical", 15),
    Sketcher.Constraint("Coincident", 8, 3, 5, 3),
    Sketcher.Constraint("Coincident", 10, 3, 3, 3),
    Sketcher.Constraint("Coincident", 12, 3, 1, 3),
    Sketcher.Constraint("Coincident", 14, 3, 7, 3),
    Sketcher.Constraint("Equal", 1, 3),
    Sketcher.Constraint("Equal", 3, 5),
    Sketcher.Constraint("Equal", 5, 7),
    Sketcher.Constraint("Symmetric", 1, 3, 5, 3, -1, 1),
    Sketcher.Constraint("Radius", 8, Q("0.5 in")),
    Sketcher.Constraint("DistanceX", 0, 1, 0, 2, Q("4 in")),
    Sketcher.Constraint("Radius", 1, Q("1.875 in")),
    Sketcher.Constraint("DistanceY", 2, 1, 2, 2, Q("5.25 in")),
    Sketcher.Constraint("DistanceY", -1, 1, 3, 2, Q("4.25 in")),
])
pad3 = doc.addObject("PartDesign::Pad", "Pad002")
body3.addObject(pad3)
pad3.Profile = sketch7
pad3.Length = Q("0.125 in")

sketch8 = doc.addObject("Sketcher::SketchObject", "Sketch007")
body3.addObject(sketch8)
sketch8.AttachmentSupport = (doc.getObject("XY_Plane002"), [""])
sketch8.MapMode = "FlatFace"
sketch8.AttachmentOffset = App.Placement(V(0, 0, 0.75 * 25.4), App.Rotation())
sketch8.addGeometry([
    Part.Circle(V(-74.6, 19.1, 0), V(0, 0, 1), 2.2),
    Part.Circle(V(-74.6, 66.7, 0), V(0, 0, 1), 2.2),
    Part.Circle(V(-50.8, 90.5, 0), V(0, 0, 1), 2.2),
    Part.Circle(V(-25.4, 90.5, 0), V(0, 0, 1), 2.2),
    Part.Circle(V(25.4, 90.5, 0), V(0, 0, 1), 2.2),
    Part.Circle(V(50.8, 90.5, 0), V(0, 0, 1), 2.2),
    Part.Circle(V(74.6, 66.7, 0), V(0, 0, 1), 2.2),
    Part.Circle(V(74.6, 19.1, 0), V(0, 0, 1), 2.2),
    Part.Circle(V(74.6, -19.1, 0), V(0, 0, 1), 2.2),
    Part.Circle(V(-74.6, -19.1, 0), V(0, 0, 1), 2.2),
    Part.Circle(V(-74.6, -66.7, 0), V(0, 0, 1), 2.2),
    Part.Circle(V(-50.8, -90.5, 0), V(0, 0, 1), 2.2),
    Part.Circle(V(-25.4, -90.5, 0), V(0, 0, 1), 2.2),
    Part.Circle(V(25.4, -90.5, 0), V(0, 0, 1), 2.2),
    Part.Circle(V(50.8, -90.5, 0), V(0, 0, 1), 2.2),
    Part.Circle(V(74.6, -66.7, 0), V(0, 0, 1), 2.2),
], False)
sketch8.addConstraint([
    Sketcher.Constraint("Equal", 0, 1),
    Sketcher.Constraint("Equal", 1, 2),
    Sketcher.Constraint("Equal", 2, 3),
    Sketcher.Constraint("Equal", 3, 4),
    Sketcher.Constraint("Equal", 4, 5),
    Sketcher.Constraint("Equal", 5, 6),
    Sketcher.Constraint("Equal", 6, 7),
    Sketcher.Constraint("Equal", 7, 8),
    Sketcher.Constraint("Equal", 8, 9),
    Sketcher.Constraint("Equal", 9, 10),
    Sketcher.Constraint("Equal", 10, 11),
    Sketcher.Constraint("Equal", 11, 12),
    Sketcher.Constraint("Equal", 12, 13),
    Sketcher.Constraint("Equal", 13, 14),
    Sketcher.Constraint("Equal", 14, 15),
    Sketcher.Constraint("Symmetric", 0, 3, 8, 3, -1, 1),
    Sketcher.Constraint("Symmetric", 7, 3, 9, 3, -1, 1),
    Sketcher.Constraint("Symmetric", 6, 3, 10, 3, -1, 1),
    Sketcher.Constraint("Symmetric", 5, 3, 11, 3, -1, 1),
    Sketcher.Constraint("Symmetric", 4, 3, 12, 3, -1, 1),
    Sketcher.Constraint("Symmetric", 3, 3, 13, 3, -1, 1),
    Sketcher.Constraint("Symmetric", 2, 3, 14, 3, -1, 1),
    Sketcher.Constraint("Symmetric", 1, 3, 15, 3, -1, 1),
    Sketcher.Constraint("Symmetric", 3, 3, 4, 3, -2),
    Sketcher.Constraint("Symmetric", 2, 3, 5, 3, -2),
    Sketcher.Constraint("Symmetric", 1, 3, 6, 3, -2),
    Sketcher.Constraint("Symmetric", 0, 3, 7, 3, -2),
    Sketcher.Constraint("Horizontal", 2, 3, 3, 3),
    Sketcher.Constraint("Vertical", 0, 3, 1, 3),
    Sketcher.Constraint("Diameter", 0, Q("0.17 in")),
    Sketcher.Constraint("DistanceX", 2, 3, -1, 1, Q("2 in")),
    Sketcher.Constraint("DistanceX", 3, 3, -1, 1, Q("1 in")),
    Sketcher.Constraint("DistanceY", 8, 3, 7, 3, Q("1.5 in")),
    Sketcher.Constraint("DistanceY", 10, 3, 1, 3, Q("5.25 in")),
    Sketcher.Constraint("DistanceX", 0, 3, -1, 1, Q("2.9375 in")),
    Sketcher.Constraint("DistanceY", -1, 1, 2, 3, Q("3.5625 in")),
])
doc.recompute()
hole4 = doc.addObject("PartDesign::Hole", "Hole003")
body3.addObject(hole4)
hole4.Profile = sketch8
hole4.ThreadType = "None"
hole4.Diameter = Q("0.17 in")
hole4.DepthType = "ThroughAll"
hole4.Reversed = True

sketch9 = doc.addObject("Sketcher::SketchObject", "Sketch008")
body3.addObject(sketch9)
sketch9.AttachmentSupport = (doc.getObject("XY_Plane002"), [""])
sketch9.MapMode = "FlatFace"
sketch9.AttachmentOffset = App.Placement(V(0, 0, 0.75 * 25.4), App.Rotation())
sketch9.addGeometry([
    Part.Circle(V(-92.1, 66.7, 0), V(0, 0, 1), 2.2),
    Part.Circle(V(-80, 95.9, 0), V(0, 0, 1), 2.2),
    Part.Circle(V(80, 95.9, 0), V(0, 0, 1), 2.2),
    Part.Circle(V(92.1, 66.7, 0), V(0, 0, 1), 2.2),
    Part.Circle(V(92.1, 0, 0), V(0, 0, 1), 2.2),
    Part.Circle(V(92.1, -66.7, 0), V(0, 0, 1), 2.2),
    Part.Circle(V(50.8, -108, 0), V(0, 0, 1), 2.2),
    Part.Circle(V(0, -108, 0), V(0, 0, 1), 2.2),
    Part.Circle(V(-50.8, -108, 0), V(0, 0, 1), 2.2),
    Part.Circle(V(-92.1, -66.7, 0), V(0, 0, 1), 2.2),
    Part.Circle(V(-92.1, 0, 0), V(0, 0, 1), 2.2),
], False)
sketch9.addConstraint([
    Sketcher.Constraint("Equal", 0, 1),
    Sketcher.Constraint("Equal", 1, 2),
    Sketcher.Constraint("Equal", 2, 3),
    Sketcher.Constraint("Equal", 3, 4),
    Sketcher.Constraint("Equal", 4, 5),
    Sketcher.Constraint("Equal", 5, 6),
    Sketcher.Constraint("Equal", 6, 7),
    Sketcher.Constraint("Equal", 7, 8),
    Sketcher.Constraint("Equal", 8, 9),
    Sketcher.Constraint("Equal", 9, 10),
    Sketcher.Constraint("Symmetric", 0, 3, 5, 3, -1, 1),
    Sketcher.Constraint("Symmetric", 3, 3, 9, 3, -1, 1),
    Sketcher.Constraint("Symmetric", 4, 3, 10, 3, -1, 1),
    Sketcher.Constraint("Symmetric", 1, 3, 2, 3, -2),
    Sketcher.Constraint("Symmetric", 0, 3, 3, 3, -2),
    Sketcher.Constraint("Symmetric", 6, 3, 8, 3, -2),
    Sketcher.Constraint("PointOnObject", 4, 3, -1),
    Sketcher.Constraint("PointOnObject", 7, 3, -2),
    Sketcher.Constraint("Horizontal", 6, 3, 7, 3),
    Sketcher.Constraint("Vertical", 3, 3, 4, 3),
    Sketcher.Constraint("Diameter", 0, Q("0.17 in")),
    Sketcher.Constraint("DistanceX", -1, 1, 6, 3, Q("2 in")),
    Sketcher.Constraint("DistanceY", 6, 3, -1, 1, Q("4.25 in")),
    Sketcher.Constraint("DistanceX", 0, 3, 3, 3, Q("7.25 in")),
    Sketcher.Constraint("DistanceY", 5, 3, 3, 3, Q("5.25 in")),
    Sketcher.Constraint("DistanceX", 1, 3, -1, 1, 79.985832),
    Sketcher.Constraint("DistanceY", -1, 1, 1, 3, 95.860832),
])
doc.recompute()
hole5 = doc.addObject("PartDesign::Hole", "Hole004")
body3.addObject(hole5)
hole5.Profile = sketch9
hole5.ThreadType = "None"
hole5.Diameter = Q("0.17 in")
hole5.DepthType = "ThroughAll"
hole5.Reversed = True

doc.recompute()
